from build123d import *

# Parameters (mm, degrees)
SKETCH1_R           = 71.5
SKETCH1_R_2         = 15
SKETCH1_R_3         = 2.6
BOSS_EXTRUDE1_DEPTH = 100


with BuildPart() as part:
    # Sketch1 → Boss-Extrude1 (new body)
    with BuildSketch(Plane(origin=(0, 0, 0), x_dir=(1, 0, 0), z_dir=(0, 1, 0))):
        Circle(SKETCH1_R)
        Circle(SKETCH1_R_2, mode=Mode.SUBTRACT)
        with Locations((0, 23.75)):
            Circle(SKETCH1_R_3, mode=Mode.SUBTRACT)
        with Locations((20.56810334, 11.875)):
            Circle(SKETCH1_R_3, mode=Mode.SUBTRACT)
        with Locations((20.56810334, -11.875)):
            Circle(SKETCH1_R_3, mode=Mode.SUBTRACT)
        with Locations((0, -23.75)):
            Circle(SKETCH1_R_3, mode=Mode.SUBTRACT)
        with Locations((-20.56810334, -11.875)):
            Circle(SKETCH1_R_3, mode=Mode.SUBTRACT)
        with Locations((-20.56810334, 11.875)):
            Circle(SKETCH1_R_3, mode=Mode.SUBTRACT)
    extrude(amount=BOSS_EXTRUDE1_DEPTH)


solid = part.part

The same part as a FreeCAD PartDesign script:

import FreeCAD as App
import Part
import Sketcher

V = App.Vector
Q = App.Units.Quantity

doc = App.newDocument("Part")
body = doc.addObject("PartDesign::Body", "Body")

# Sketch on XZ plane
sketch1 = body.newObject("Sketcher::SketchObject", "Sketch")
sketch1.AttachmentSupport = (doc.getObject("XZ_Plane"), [""])
sketch1.MapMode = "FlatFace"
sketch1.addGeometry([
    Part.Circle(V(0, 0, 0), V(0, 0, 1), 71.5),  # 0
    Part.Circle(V(-20.6, 11.9, 0), V(0, 0, 1), 2.6),  # 1
    Part.Circle(V(0, 23.8, 0), V(0, 0, 1), 2.6),  # 2
    Part.Circle(V(20.6, 11.9, 0), V(0, 0, 1), 2.6),  # 3
    Part.Circle(V(-20.6, -11.9, 0), V(0, 0, 1), 2.6),  # 4
    Part.Circle(V(0, 0, 0), V(0, 0, 1), 15),  # 5
    Part.Circle(V(20.6, -11.9, 0), V(0, 0, 1), 2.6),  # 6
    Part.Circle(V(0, -23.8, 0), V(0, 0, 1), 2.6),  # 7
], False)
sketch1.addConstraint([
    Sketcher.Constraint("Coincident", 0, 3, -1, 1),
    Sketcher.Constraint("Coincident", 5, 3, -1, 1),
    Sketcher.Constraint("Equal", 1, 2),
    Sketcher.Constraint("Equal", 2, 3),
    Sketcher.Constraint("Equal", 3, 4),
    Sketcher.Constraint("Equal", 4, 6),
    Sketcher.Constraint("Equal", 6, 7),
    Sketcher.Constraint("Symmetric", 3, 3, 4, 3, -1, 1),
    Sketcher.Constraint("Symmetric", 1, 3, 6, 3, -1, 1),
    Sketcher.Constraint("Symmetric", 2, 3, 7, 3, -1, 1),
    Sketcher.Constraint("Symmetric", 1, 3, 3, 3, -2),
    Sketcher.Constraint("PointOnObject", 2, 3, -2),
    Sketcher.Constraint("Diameter", 0, Q("143 mm")),
    Sketcher.Constraint("Diameter", 5, Q("30 mm")),
    Sketcher.Constraint("Diameter", 1, Q("5.2 mm")),
    Sketcher.Constraint("DistanceY", -1, 1, 2, 3, Q("23.75 mm")),
    Sketcher.Constraint("DistanceY", 4, 3, 1, 3, Q("23.75 mm")),
    Sketcher.Constraint("DistanceX", 1, 3, -1, 1, Q("20.568103 mm")),
])
pad1 = body.newObject("PartDesign::Pad", "Pad")
pad1.Profile = sketch1
pad1.Length = 100
pad1.Reversed = True

doc.recompute()
